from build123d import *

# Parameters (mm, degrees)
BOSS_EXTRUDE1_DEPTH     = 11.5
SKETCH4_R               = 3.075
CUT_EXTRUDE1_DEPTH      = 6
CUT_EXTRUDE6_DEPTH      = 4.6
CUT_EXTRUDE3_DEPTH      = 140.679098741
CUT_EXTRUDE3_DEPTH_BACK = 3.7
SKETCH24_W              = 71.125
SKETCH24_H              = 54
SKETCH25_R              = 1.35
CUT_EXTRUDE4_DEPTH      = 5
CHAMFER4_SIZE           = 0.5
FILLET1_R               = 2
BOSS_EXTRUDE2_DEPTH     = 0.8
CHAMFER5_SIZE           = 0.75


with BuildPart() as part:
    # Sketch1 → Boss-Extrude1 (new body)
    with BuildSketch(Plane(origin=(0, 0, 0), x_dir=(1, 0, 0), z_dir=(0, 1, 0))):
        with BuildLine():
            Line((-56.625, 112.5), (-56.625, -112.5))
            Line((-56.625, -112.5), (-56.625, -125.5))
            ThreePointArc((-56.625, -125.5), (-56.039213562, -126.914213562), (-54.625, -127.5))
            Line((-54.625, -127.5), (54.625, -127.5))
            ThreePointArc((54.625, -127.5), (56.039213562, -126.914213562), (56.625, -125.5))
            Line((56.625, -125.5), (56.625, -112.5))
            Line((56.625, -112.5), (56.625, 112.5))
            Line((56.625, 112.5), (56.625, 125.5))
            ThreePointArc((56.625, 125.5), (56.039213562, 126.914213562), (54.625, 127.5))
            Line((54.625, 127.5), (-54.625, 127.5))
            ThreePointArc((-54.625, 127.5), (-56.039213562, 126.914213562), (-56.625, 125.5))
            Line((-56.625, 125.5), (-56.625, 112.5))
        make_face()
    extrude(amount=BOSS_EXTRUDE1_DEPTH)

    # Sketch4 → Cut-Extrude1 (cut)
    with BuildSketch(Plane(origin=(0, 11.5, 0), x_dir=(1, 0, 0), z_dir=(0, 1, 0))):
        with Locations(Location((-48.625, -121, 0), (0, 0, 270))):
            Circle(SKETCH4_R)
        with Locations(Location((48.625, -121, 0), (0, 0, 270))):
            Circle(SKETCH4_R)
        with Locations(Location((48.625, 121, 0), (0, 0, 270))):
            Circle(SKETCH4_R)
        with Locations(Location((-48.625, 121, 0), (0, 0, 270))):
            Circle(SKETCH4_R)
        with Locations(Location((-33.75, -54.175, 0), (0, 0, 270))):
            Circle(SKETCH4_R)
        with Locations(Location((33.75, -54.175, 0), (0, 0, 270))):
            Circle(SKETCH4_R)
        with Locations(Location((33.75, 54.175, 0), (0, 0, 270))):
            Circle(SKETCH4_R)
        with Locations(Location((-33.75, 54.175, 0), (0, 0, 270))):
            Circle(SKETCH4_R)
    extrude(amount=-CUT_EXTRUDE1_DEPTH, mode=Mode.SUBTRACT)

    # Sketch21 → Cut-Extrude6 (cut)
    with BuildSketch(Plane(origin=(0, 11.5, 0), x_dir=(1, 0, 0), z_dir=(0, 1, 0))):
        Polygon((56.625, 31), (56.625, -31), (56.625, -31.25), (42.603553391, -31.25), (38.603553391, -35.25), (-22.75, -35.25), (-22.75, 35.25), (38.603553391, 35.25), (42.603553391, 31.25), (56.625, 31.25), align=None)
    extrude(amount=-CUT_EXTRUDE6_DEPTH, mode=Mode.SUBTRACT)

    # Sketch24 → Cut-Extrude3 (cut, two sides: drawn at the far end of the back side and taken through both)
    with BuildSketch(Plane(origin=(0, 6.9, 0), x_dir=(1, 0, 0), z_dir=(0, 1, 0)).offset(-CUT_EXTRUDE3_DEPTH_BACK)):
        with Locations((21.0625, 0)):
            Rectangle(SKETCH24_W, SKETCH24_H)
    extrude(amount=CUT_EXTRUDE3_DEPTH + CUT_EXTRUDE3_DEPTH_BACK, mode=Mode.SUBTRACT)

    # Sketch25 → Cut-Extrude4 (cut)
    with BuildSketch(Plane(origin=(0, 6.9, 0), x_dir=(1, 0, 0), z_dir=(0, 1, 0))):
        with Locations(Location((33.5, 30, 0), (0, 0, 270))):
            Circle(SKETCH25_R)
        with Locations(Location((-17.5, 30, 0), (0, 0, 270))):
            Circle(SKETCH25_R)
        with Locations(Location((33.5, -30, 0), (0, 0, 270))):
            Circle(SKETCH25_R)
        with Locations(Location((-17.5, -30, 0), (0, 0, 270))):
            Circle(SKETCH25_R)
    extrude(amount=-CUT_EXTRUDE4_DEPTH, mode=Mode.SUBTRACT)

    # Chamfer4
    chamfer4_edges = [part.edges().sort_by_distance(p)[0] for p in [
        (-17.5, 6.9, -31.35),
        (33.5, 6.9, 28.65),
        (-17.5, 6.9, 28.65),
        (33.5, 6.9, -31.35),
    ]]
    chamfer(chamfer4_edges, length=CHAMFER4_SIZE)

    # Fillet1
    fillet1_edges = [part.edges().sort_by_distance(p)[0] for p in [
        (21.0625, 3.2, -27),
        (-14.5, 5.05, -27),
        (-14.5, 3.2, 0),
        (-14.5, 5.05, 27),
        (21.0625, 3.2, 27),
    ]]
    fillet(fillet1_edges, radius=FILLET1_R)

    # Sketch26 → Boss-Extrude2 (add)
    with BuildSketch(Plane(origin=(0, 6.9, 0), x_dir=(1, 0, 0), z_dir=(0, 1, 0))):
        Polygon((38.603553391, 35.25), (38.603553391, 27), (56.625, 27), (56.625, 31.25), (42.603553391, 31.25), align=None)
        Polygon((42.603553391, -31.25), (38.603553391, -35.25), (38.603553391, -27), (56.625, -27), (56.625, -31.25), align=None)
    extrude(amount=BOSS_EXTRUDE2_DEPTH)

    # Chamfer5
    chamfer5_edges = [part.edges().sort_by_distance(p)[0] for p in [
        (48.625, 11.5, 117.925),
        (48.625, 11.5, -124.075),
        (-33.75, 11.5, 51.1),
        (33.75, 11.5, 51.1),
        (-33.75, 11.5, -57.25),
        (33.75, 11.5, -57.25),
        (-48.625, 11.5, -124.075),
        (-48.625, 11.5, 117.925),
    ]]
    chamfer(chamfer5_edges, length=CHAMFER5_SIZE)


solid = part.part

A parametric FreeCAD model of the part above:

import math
import FreeCAD as App
import Part
import Sketcher
Q = App.Units.Quantity


def edges_at(feature, points):
    """Names of the edges that pass closest to the given points."""
    edges = feature.Shape.Edges
    near = lambda p: min(range(len(edges)), key=lambda i: edges[i].distToShape(Part.Vertex(*p))[0])
    return sorted({f"Edge{near(p) + 1}" for p in points})

doc = App.newDocument("Part")
params = doc.addObject("Spreadsheet::Sheet", "Params")
for row, (alias, value) in enumerate([
    ("sketch1_radius", "2 mm"),
    ("sketch1_height", "251 mm"),
    ("sketch1_width", "109.25 mm"),
    ("pad1_length", "11.5 mm"),
    ("sketch2_diameter", "6.15 mm"),
    ("pocket1_length", "6 mm"),
    ("sketch3_height", "62.5 mm"),
    ("sketch3_height2", "70.5 mm"),
    ("pocket2_length", "4.6 mm"),
    ("sketch4_height", "54 mm"),
    ("pocket3_length", "140.679099 mm"),
    ("pocket3_length2", "3.7 mm"),
    ("sketch5_diameter", "2.7 mm"),
    ("pocket4_length", "5 mm"),
    ("chamfer_size", "0.5 mm"),
    ("fillet_radius", "2 mm"),
    ("sketch6_height", "8.25 mm"),
    ("pad2_length", "0.8 mm"),
    ("chamfer2_size", "0.75 mm"),
], start=1):
    params.set(f"A{row}", alias)
    params.set(f"B{row}", "=" + value)
    params.setAlias(f"B{row}", alias)

body = doc.addObject("PartDesign::Body", "Body")

sketch1 = body.newObject("Sketcher::SketchObject", "Sketch")
sketch1.AttachmentSupport = (doc.getObject("XZ_Plane"), [""])
sketch1.MapMode = "FlatFace"
sketch1.addGeometry([
    Part.ArcOfCircle(Part.Circle(App.Vector(-54.6, 125.5, 0), App.Vector(0, 0, 1), 2), math.radians(90), math.radians(180)),
    Part.LineSegment(App.Vector(-54.6, 127.5, 0), App.Vector(54.6, 127.5, 0)),
    Part.ArcOfCircle(Part.Circle(App.Vector(54.6, 125.5, 0), App.Vector(0, 0, 1), 2), math.radians(0), math.radians(90)),
    Part.LineSegment(App.Vector(56.6, 125.5, 0), App.Vector(56.6, -125.5, 0)),
    Part.ArcOfCircle(Part.Circle(App.Vector(54.6, -125.5, 0), App.Vector(0, 0, 1), 2), math.radians(-90), math.radians(0)),
    Part.LineSegment(App.Vector(54.6, -127.5, 0), App.Vector(-54.6, -127.5, 0)),
    Part.ArcOfCircle(Part.Circle(App.Vector(-54.6, -125.5, 0), App.Vector(0, 0, 1), 2), math.radians(-180), math.radians(-90)),
    Part.LineSegment(App.Vector(-56.6, -125.5, 0), App.Vector(-56.6, 125.5, 0)),
], False)
sketch1.addConstraint([
    Sketcher.Constraint("Tangent", 0, 1, 1, 1),
    Sketcher.Constraint("Tangent", 1, 2, 2, 2),
    Sketcher.Constraint("Tangent", 2, 1, 3, 1),
    Sketcher.Constraint("Tangent", 3, 2, 4, 2),
    Sketcher.Constraint("Tangent", 4, 1, 5, 1),
    Sketcher.Constraint("Tangent", 5, 2, 6, 2),
    Sketcher.Constraint("Tangent", 6, 1, 7, 1),
    Sketcher.Constraint("Tangent", 7, 2, 0, 2),
    Sketcher.Constraint("Horizontal", 1),
    Sketcher.Constraint("Vertical", 3),
    Sketcher.Constraint("Horizontal", 5),
    Sketcher.Constraint("Vertical", 7),
    Sketcher.Constraint("Equal", 0, 2),
    Sketcher.Constraint("Equal", 2, 4),
    Sketcher.Constraint("Equal", 4, 6),
    Sketcher.Constraint("Symmetric", 0, 3, 4, 3, -1, 1),
    Sketcher.Constraint("Radius", 0, Q("2 mm")),
    Sketcher.Constraint("DistanceY", 3, 2, 3, 1, Q("251 mm")),
    Sketcher.Constraint("DistanceX", 1, 1, 1, 2, Q("109.25 mm")),
])
sketch1.setExpression("Constraints[16]", "Params.sketch1_radius")
sketch1.setExpression("Constraints[17]", "Params.sketch1_height")
sketch1.setExpression("Constraints[18]", "Params.sketch1_width")
pad1 = body.newObject("PartDesign::Pad", "Pad")
pad1.Profile = sketch1
pad1.setExpression("Length", "Params.pad1_length")
pad1.Reversed = True

sketch2 = body.newObject("Sketcher::SketchObject", "Sketch001")
sketch2.AttachmentSupport = (doc.getObject("XZ_Plane"), [""])
sketch2.MapMode = "FlatFace"
sketch2.AttachmentOffset = App.Placement(App.Vector(0, 0, -11.5), App.Rotation())
sketch2.addGeometry([
    Part.Circle(App.Vector(-48.6, 121, 0), App.Vector(0, 0, 1), 3.1),
    Part.Circle(App.Vector(48.6, 121, 0), App.Vector(0, 0, 1), 3.1),
    Part.Circle(App.Vector(48.6, -121, 0), App.Vector(0, 0, 1), 3.1),
    Part.Circle(App.Vector(-48.6, -121, 0), App.Vector(0, 0, 1), 3.1),
    Part.Circle(App.Vector(-33.8, 54.2, 0), App.Vector(0, 0, 1), 3.1),
    Part.Circle(App.Vector(33.8, 54.2, 0), App.Vector(0, 0, 1), 3.1),
    Part.Circle(App.Vector(33.8, -54.2, 0), App.Vector(0, 0, 1), 3.1),
    Part.Circle(App.Vector(-33.8, -54.2, 0), App.Vector(0, 0, 1), 3.1),
], False)
sketch2.addConstraint([
    Sketcher.Constraint("Equal", 0, 1),
    Sketcher.Constraint("Equal", 1, 2),
    Sketcher.Constraint("Equal", 2, 3),
    Sketcher.Constraint("Equal", 3, 4),
    Sketcher.Constraint("Equal", 4, 5),
    Sketcher.Constraint("Equal", 5, 6),
    Sketcher.Constraint("Equal", 6, 7),
    Sketcher.Constraint("Symmetric", 0, 3, 2, 3, -1, 1),
    Sketcher.Constraint("Symmetric", 1, 3, 3, 3, -1, 1),
    Sketcher.Constraint("Symmetric", 4, 3, 6, 3, -1, 1),
    Sketcher.Constraint("Symmetric", 5, 3, 7, 3, -1, 1),
    Sketcher.Constraint("Symmetric", 0, 3, 1, 3, -2),
    Sketcher.Constraint("Symmetric", 4, 3, 5, 3, -2),
    Sketcher.Constraint("Diameter", 0, Q("6.15 mm")),
    Sketcher.Constraint("DistanceY", -1, 1, 0, 3, Q("121 mm")),
    Sketcher.Constraint("DistanceX", 4, 3, 5, 3, Q("67.5 mm")),
    Sketcher.Constraint("DistanceX", 0, 3, 1, 3, Q("97.25 mm")),
    Sketcher.Constraint("DistanceY", 6, 3, 5, 3, Q("108.35 mm")),
])
sketch2.setExpression("Constraints[13]", "Params.sketch2_diameter")
pocket1 = body.newObject("PartDesign::Pocket", "Pocket")
pocket1.Profile = sketch2
pocket1.setExpression("Length", "Params.pocket1_length")
pocket1.Reversed = True

sketch3 = body.newObject("Sketcher::SketchObject", "Sketch002")
sketch3.AttachmentSupport = (doc.getObject("XZ_Plane"), [""])
sketch3.MapMode = "FlatFace"
sketch3.AttachmentOffset = App.Placement(App.Vector(0, 0, -11.5), App.Rotation())
sketch3.addGeometry([
    Part.LineSegment(App.Vector(57, 31, 0), App.Vector(57, -31, 0)),
    Part.LineSegment(App.Vector(57, -31, 0), App.Vector(43, -31, 0)),
    Part.LineSegment(App.Vector(43, -31, 0), App.Vector(39, -35, 0)),
    Part.LineSegment(App.Vector(39, -35, 0), App.Vector(-23, -35, 0)),
    Part.LineSegment(App.Vector(-23, -35, 0), App.Vector(-23, 35, 0)),
    Part.LineSegment(App.Vector(-23, 35, 0), App.Vector(39, 35, 0)),
    Part.LineSegment(App.Vector(39, 35, 0), App.Vector(43, 31, 0)),
    Part.LineSegment(App.Vector(43, 31, 0), App.Vector(57, 31, 0)),
], False)
sketch3.addConstraint([
    Sketcher.Constraint("Coincident", 0, 2, 1, 1),
    Sketcher.Constraint("Coincident", 1, 2, 2, 1),
    Sketcher.Constraint("Coincident", 2, 2, 3, 1),
    Sketcher.Constraint("Coincident", 3, 2, 4, 1),
    Sketcher.Constraint("Coincident", 4, 2, 5, 1),
    Sketcher.Constraint("Coincident", 5, 2, 6, 1),
    Sketcher.Constraint("Coincident", 6, 2, 7, 1),
    Sketcher.Constraint("Coincident", 7, 2, 0, 1),
    Sketcher.Constraint("Vertical", 0),
    Sketcher.Constraint("Horizontal", 1),
    Sketcher.Constraint("Horizontal", 3),
    Sketcher.Constraint("Vertical", 4),
    Sketcher.Constraint("Horizontal", 5),
    Sketcher.Constraint("Horizontal", 7),
    Sketcher.Constraint("Symmetric", 2, 2, 5, 2, -1),
    Sketcher.Constraint("Symmetric", 1, 2, 6, 2, -1),
    Sketcher.Constraint("Perpendicular", 2, 6),
    Sketcher.Constraint("DistanceY", 0, 2, 0, 1, Q("62.5 mm")),
    Sketcher.Constraint("DistanceY", 4, 1, 4, 2, Q("70.5 mm")),
    Sketcher.Constraint("DistanceX", 3, 2, -1, 1, Q("22.75 mm")),
    Sketcher.Constraint("DistanceX", -1, 1, 0, 2, Q("56.625 mm")),
    Sketcher.Constraint("DistanceX", 1, 2, 1, 1, Q("14.021447 mm")),
])
sketch3.setExpression("Constraints[17]", "Params.sketch3_height")
sketch3.setExpression("Constraints[18]", "Params.sketch3_height2")
pocket2 = body.newObject("PartDesign::Pocket", "Pocket001")
pocket2.Profile = sketch3
pocket2.setExpression("Length", "Params.pocket2_length")
pocket2.Reversed = True

sketch4 = body.newObject("Sketcher::SketchObject", "Sketch003")
sketch4.AttachmentSupport = (doc.getObject("XZ_Plane"), [""])
sketch4.MapMode = "FlatFace"
sketch4.AttachmentOffset = App.Placement(App.Vector(0, 0, -6.9), App.Rotation())
sketch4.addGeometry([
    Part.LineSegment(App.Vector(-14, -27, 0), App.Vector(-14, 27, 0)),
    Part.LineSegment(App.Vector(-14, 27, 0), App.Vector(57, 27, 0)),
    Part.LineSegment(App.Vector(57, 27, 0), App.Vector(57, -27, 0)),
    Part.LineSegment(App.Vector(57, -27, 0), App.Vector(-14, -27, 0)),
], False)
sketch4.addConstraint([
    Sketcher.Constraint("Coincident", 0, 2, 1, 1),
    Sketcher.Constraint("Coincident", 1, 2, 2, 1),
    Sketcher.Constraint("Coincident", 2, 2, 3, 1),
    Sketcher.Constraint("Coincident", 3, 2, 0, 1),
    Sketcher.Constraint("Vertical", 0),
    Sketcher.Constraint("Horizontal", 1),
    Sketcher.Constraint("Vertical", 2),
    Sketcher.Constraint("Horizontal", 3),
    Sketcher.Constraint("DistanceY", 0, 1, 0, 2, Q("54 mm")),
    Sketcher.Constraint("DistanceY", -1, 1, 0, 2, Q("27 mm")),
    Sketcher.Constraint("DistanceX", 0, 2, -1, 1, Q("14.5 mm")),
    Sketcher.Constraint("DistanceX", 1, 1, 1, 2, Q("71.125 mm")),
])
sketch4.setExpression("Constraints[8]", "Params.sketch4_height")
pocket3 = body.newObject("PartDesign::Pocket", "Pocket002")
pocket3.Profile = sketch4
pocket3.Type = "TwoLengths"
pocket3.setExpression("Length", "Params.pocket3_length")
pocket3.setExpression("Length2", "Params.pocket3_length2")

sketch5 = body.newObject("Sketcher::SketchObject", "Sketch004")
sketch5.AttachmentSupport = (doc.getObject("XZ_Plane"), [""])
sketch5.MapMode = "FlatFace"
sketch5.AttachmentOffset = App.Placement(App.Vector(0, 0, -6.9), App.Rotation())
sketch5.addGeometry([
    Part.Circle(App.Vector(33.5, -30, 0), App.Vector(0, 0, 1), 1.4),
    Part.Circle(App.Vector(-17.5, -30, 0), App.Vector(0, 0, 1), 1.4),
    Part.Circle(App.Vector(33.5, 30, 0), App.Vector(0, 0, 1), 1.4),
    Part.Circle(App.Vector(-17.5, 30, 0), App.Vector(0, 0, 1), 1.4),
], False)
sketch5.addConstraint([
    Sketcher.Constraint("Equal", 0, 1),
    Sketcher.Constraint("Equal", 1, 2),
    Sketcher.Constraint("Equal", 2, 3),
    Sketcher.Constraint("Symmetric", 0, 3, 2, 3, -1),
    Sketcher.Constraint("Symmetric", 1, 3, 3, 3, -1),
    Sketcher.Constraint("Horizontal", 0, 3, 1, 3),
    Sketcher.Constraint("Diameter", 0, Q("2.7 mm")),
    Sketcher.Constraint("DistanceY", 0, 3, -1, 1, Q("30 mm")),
    Sketcher.Constraint("DistanceX", 1, 3, 0, 3, Q("51 mm")),
    Sketcher.Constraint("DistanceX", -1, 1, 0, 3, Q("33.5 mm")),
])
sketch5.setExpression("Constraints[6]", "Params.sketch5_diameter")
pocket4 = body.newObject("PartDesign::Pocket", "Pocket003")
pocket4.Profile = sketch5
pocket4.setExpression("Length", "Params.pocket4_length")
pocket4.Reversed = True
doc.recompute()

chamfer = body.newObject("PartDesign::Chamfer", "Chamfer")
chamfer.Base = (pocket4, edges_at(pocket4, [
    (-17.5, 6.9, -31.35),
    (33.5, 6.9, 28.65),
    (-17.5, 6.9, 28.65),
    (33.5, 6.9, -31.35),
]))
chamfer.setExpression("Size", "Params.chamfer_size")
doc.recompute()

fillet = body.newObject("PartDesign::Fillet", "Fillet")
fillet.Base = (chamfer, edges_at(chamfer, [
    (21.062, 3.2, -27),
    (-14.5, 5.05, -27),
    (-14.5, 3.2, 0),
    (-14.5, 5.05, 27),
    (21.062, 3.2, 27),
]))
fillet.setExpression("Radius", "Params.fillet_radius")

sketch6 = body.newObject("Sketcher::SketchObject", "Sketch005")
sketch6.AttachmentSupport = (doc.getObject("XZ_Plane"), [""])
sketch6.MapMode = "FlatFace"
sketch6.AttachmentOffset = App.Placement(App.Vector(0, 0, -6.9), App.Rotation())
sketch6.addGeometry([
    Part.LineSegment(App.Vector(38.6, -35.2, 0), App.Vector(38.6, -27, 0)),
    Part.LineSegment(App.Vector(38.6, -27, 0), App.Vector(56.6, -27, 0)),
    Part.LineSegment(App.Vector(56.6, -27, 0), App.Vector(56.6, -31.2, 0)),
    Part.LineSegment(App.Vector(56.6, -31.2, 0), App.Vector(42.6, -31.2, 0)),
    Part.LineSegment(App.Vector(42.6, -31.2, 0), App.Vector(38.6, -35.2, 0)),
    Part.LineSegment(App.Vector(38.6, 35.2, 0), App.Vector(42.6, 31.2, 0)),
    Part.LineSegment(App.Vector(42.6, 31.2, 0), App.Vector(56.6, 31.2, 0)),
    Part.LineSegment(App.Vector(56.6, 31.2, 0), App.Vector(56.6, 27, 0)),
    Part.LineSegment(App.Vector(56.6, 27, 0), App.Vector(38.6, 27, 0)),
    Part.LineSegment(App.Vector(38.6, 27, 0), App.Vector(38.6, 35.2, 0)),
], False)
sketch6.addConstraint([
    Sketcher.Constraint("Coincident", 0, 2, 1, 1),
    Sketcher.Constraint("Coincident", 1, 2, 2, 1),
    Sketcher.Constraint("Coincident", 2, 2, 3, 1),
    Sketcher.Constraint("Coincident", 3, 2, 4, 1),
    Sketcher.Constraint("Coincident", 4, 2, 0, 1),
    Sketcher.Constraint("Coincident", 5, 2, 6, 1),
    Sketcher.Constraint("Coincident", 6, 2, 7, 1),
    Sketcher.Constraint("Coincident", 7, 2, 8, 1),
    Sketcher.Constraint("Coincident", 8, 2, 9, 1),
    Sketcher.Constraint("Coincident", 9, 2, 5, 1),
    Sketcher.Constraint("Vertical", 0),
    Sketcher.Constraint("Horizontal", 1),
    Sketcher.Constraint("Vertical", 2),
    Sketcher.Constraint("Horizontal", 3),
    Sketcher.Constraint("Horizontal", 6),
    Sketcher.Constraint("Vertical", 7),
    Sketcher.Constraint("Horizontal", 8),
    Sketcher.Constraint("Vertical", 9),
    Sketcher.Constraint("Symmetric", 3, 2, 5, 2, -1),
    Sketcher.Constraint("Symmetric", 1, 2, 7, 2, -1),
    Sketcher.Constraint("Symmetric", 4, 2, 9, 2, -1),
    Sketcher.Constraint("Perpendicular", 4, 5),
    Sketcher.Constraint("DistanceY", 0, 2, -1, 1, Q("27 mm")),
    Sketcher.Constraint("DistanceX", 0, 2, 3, 2, Q("4 mm")),
    Sketcher.Constraint("DistanceY", 0, 1, 0, 2, Q("8.25 mm")),
    Sketcher.Constraint("DistanceX", -1, 1, 1, 2, Q("56.625 mm")),
    Sketcher.Constraint("DistanceX", 1, 1, 1, 2, Q("18.021447 mm")),
])
sketch6.setExpression("Constraints[24]", "Params.sketch6_height")
pad2 = body.newObject("PartDesign::Pad", "Pad001")
pad2.Profile = sketch6
pad2.setExpression("Length", "Params.pad2_length")
pad2.Reversed = True
doc.recompute()

chamfer2 = body.newObject("PartDesign::Chamfer", "Chamfer001")
chamfer2.Base = (pad2, edges_at(pad2, [
    (48.625, 11.5, 117.925),
    (48.625, 11.5, -124.075),
    (-33.75, 11.5, 51.1),
    (33.75, 11.5, 51.1),
    (-33.75, 11.5, -57.25),
    (33.75, 11.5, -57.25),
    (-48.625, 11.5, -124.075),
    (-48.625, 11.5, 117.925),
]))
chamfer2.setExpression("Size", "Params.chamfer2_size")

doc.recompute()
